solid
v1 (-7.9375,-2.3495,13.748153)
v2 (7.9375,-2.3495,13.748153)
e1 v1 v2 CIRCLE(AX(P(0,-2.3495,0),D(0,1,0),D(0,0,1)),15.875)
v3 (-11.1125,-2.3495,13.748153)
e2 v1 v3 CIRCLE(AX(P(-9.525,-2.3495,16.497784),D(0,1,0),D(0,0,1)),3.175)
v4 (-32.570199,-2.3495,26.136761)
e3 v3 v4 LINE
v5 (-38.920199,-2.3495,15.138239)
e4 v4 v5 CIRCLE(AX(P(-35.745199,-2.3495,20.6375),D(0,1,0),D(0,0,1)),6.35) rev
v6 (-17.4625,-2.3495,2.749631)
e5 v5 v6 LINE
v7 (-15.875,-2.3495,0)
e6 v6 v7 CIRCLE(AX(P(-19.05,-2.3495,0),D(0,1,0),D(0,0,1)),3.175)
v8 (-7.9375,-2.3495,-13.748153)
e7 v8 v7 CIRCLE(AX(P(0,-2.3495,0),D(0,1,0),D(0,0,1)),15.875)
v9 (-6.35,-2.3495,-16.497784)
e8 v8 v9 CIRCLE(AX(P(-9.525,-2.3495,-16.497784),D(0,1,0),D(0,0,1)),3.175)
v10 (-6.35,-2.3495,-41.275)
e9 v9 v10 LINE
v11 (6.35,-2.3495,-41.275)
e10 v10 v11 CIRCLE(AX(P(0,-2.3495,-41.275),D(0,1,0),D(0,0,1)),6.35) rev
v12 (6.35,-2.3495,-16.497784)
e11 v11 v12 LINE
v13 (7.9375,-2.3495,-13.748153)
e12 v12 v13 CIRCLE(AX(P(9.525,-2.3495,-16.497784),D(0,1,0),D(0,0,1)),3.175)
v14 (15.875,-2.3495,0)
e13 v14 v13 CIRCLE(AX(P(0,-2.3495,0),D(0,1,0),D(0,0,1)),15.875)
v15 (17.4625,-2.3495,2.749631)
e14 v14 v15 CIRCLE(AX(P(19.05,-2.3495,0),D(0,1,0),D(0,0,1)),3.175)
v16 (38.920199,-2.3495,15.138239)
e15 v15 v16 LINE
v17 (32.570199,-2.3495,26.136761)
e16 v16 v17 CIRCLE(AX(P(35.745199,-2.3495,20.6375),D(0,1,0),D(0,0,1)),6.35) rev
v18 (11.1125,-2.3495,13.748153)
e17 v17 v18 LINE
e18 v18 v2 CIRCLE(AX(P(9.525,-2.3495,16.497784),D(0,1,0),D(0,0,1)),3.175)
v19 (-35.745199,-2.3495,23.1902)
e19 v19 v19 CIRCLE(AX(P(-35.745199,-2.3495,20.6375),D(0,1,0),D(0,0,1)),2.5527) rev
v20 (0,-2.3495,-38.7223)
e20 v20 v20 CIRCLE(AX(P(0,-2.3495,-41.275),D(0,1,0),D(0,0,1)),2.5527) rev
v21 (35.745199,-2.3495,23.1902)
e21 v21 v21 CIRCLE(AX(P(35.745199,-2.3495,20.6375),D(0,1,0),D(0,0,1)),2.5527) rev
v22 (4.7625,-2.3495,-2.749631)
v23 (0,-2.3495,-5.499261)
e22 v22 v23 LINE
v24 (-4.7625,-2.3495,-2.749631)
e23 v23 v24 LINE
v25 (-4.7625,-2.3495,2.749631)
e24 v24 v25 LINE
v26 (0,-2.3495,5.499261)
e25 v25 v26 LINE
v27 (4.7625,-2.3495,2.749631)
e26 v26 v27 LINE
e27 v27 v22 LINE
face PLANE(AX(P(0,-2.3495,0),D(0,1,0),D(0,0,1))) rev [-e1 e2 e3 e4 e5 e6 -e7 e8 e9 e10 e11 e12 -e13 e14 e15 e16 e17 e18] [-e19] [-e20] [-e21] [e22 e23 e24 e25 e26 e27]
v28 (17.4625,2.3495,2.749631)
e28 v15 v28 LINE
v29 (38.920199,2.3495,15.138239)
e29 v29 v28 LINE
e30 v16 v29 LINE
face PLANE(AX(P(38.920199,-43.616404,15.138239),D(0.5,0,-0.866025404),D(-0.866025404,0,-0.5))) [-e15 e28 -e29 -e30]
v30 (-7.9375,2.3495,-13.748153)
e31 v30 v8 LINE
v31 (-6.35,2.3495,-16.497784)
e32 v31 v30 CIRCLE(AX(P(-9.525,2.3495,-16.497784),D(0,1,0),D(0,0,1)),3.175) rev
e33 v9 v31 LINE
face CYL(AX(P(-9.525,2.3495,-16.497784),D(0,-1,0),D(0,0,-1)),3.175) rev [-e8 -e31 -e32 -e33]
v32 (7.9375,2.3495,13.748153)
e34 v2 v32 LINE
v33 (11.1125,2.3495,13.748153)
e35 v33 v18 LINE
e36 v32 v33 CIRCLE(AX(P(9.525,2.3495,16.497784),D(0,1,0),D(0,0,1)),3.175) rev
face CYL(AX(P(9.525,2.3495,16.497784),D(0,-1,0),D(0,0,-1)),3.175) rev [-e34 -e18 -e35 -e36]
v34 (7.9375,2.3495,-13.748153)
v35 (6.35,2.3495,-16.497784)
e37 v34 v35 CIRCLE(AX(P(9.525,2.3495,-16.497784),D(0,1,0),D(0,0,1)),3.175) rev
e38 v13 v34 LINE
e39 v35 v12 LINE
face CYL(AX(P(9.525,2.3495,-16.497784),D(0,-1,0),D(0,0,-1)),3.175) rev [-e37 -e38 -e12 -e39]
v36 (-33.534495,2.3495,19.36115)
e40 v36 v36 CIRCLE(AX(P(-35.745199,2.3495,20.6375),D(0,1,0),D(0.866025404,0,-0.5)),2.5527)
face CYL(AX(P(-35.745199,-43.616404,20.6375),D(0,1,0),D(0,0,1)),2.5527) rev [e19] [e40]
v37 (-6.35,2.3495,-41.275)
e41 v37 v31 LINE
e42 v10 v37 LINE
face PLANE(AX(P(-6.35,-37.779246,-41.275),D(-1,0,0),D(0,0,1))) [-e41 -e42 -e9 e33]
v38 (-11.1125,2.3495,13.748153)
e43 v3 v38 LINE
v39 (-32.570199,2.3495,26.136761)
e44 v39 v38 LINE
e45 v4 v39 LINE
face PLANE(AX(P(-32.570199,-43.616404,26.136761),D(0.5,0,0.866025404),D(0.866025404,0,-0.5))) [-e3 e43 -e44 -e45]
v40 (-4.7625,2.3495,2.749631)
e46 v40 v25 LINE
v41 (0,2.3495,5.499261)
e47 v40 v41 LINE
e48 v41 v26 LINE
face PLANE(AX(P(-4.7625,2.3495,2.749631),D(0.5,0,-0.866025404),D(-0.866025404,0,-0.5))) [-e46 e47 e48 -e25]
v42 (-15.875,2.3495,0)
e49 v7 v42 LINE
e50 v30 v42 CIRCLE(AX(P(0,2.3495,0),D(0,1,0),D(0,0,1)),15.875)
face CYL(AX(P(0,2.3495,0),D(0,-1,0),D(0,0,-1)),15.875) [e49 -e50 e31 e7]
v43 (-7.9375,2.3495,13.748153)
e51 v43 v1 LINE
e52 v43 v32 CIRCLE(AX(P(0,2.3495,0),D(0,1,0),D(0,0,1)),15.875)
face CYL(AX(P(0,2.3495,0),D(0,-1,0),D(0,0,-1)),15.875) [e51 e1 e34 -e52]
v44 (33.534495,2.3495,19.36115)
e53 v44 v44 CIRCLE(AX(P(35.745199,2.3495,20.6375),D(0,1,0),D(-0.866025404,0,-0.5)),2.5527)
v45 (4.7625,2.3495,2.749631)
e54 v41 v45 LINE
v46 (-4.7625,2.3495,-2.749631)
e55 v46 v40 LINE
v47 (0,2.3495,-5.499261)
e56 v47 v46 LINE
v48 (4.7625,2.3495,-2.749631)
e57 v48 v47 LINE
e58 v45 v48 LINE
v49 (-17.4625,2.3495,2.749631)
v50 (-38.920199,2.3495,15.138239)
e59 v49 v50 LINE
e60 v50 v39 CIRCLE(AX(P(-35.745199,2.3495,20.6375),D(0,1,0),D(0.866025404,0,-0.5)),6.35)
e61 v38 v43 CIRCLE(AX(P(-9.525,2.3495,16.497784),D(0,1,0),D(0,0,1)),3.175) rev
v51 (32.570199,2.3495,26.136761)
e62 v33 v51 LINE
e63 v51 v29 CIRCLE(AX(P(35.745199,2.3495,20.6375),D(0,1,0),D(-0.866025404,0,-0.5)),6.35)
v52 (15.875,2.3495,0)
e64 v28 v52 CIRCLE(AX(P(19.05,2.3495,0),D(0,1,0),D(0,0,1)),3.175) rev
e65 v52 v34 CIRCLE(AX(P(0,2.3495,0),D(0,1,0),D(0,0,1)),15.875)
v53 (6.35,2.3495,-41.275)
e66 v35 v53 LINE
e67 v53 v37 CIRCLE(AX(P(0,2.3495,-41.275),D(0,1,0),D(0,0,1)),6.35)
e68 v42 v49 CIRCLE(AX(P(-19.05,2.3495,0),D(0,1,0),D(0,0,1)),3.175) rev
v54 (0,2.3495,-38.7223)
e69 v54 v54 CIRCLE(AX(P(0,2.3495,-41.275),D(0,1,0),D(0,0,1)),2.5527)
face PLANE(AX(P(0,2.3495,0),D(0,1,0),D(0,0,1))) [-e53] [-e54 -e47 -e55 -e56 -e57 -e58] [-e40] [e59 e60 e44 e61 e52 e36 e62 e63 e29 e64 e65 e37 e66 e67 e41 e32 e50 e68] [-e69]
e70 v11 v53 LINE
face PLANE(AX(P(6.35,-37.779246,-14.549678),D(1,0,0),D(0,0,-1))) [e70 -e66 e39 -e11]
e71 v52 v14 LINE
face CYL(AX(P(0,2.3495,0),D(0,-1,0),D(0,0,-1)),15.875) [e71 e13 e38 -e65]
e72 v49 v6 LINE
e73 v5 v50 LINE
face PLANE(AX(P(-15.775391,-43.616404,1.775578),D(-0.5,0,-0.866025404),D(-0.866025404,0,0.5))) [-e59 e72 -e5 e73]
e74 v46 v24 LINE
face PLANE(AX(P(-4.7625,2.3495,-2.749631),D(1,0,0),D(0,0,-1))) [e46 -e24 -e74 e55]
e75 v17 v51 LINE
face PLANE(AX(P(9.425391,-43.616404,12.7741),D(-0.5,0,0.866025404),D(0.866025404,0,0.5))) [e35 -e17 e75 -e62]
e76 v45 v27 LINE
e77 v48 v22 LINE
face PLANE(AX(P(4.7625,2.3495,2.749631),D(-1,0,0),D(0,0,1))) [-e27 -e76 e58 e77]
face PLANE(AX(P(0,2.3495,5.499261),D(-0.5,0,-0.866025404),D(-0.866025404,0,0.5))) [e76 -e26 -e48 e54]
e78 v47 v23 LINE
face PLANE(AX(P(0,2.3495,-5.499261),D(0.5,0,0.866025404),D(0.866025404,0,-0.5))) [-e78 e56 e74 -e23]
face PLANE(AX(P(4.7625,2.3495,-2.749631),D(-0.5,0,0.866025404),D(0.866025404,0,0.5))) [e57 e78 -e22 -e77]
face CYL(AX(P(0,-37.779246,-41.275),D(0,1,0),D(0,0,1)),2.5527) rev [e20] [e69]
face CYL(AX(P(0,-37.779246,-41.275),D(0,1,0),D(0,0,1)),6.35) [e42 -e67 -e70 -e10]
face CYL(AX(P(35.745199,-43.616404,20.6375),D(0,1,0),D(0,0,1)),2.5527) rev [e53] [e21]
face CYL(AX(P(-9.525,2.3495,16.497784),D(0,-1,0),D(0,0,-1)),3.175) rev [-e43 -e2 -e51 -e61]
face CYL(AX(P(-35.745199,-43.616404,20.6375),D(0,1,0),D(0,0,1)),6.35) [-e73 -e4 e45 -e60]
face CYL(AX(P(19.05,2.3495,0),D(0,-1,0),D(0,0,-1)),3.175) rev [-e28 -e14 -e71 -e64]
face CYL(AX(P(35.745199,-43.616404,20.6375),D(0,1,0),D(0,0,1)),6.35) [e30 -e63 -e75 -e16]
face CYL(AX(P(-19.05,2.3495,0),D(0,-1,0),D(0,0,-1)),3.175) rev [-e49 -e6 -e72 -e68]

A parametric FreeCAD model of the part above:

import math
import FreeCAD as App
import Part
import Sketcher
Q = App.Units.Quantity


def edges_at(feature, points):
    """Names of the edges that pass closest to the given points."""
    edges = feature.Shape.Edges
    near = lambda p: min(range(len(edges)), key=lambda i: edges[i].distToShape(Part.Vertex(*p))[0])
    return sorted({f"Edge{near(p) + 1}" for p in points})


def add_polygon(sketch, points):
    """Adds a closed chain of lines whose ends are joined by coincident constraints."""
    first, n = sketch.GeometryCount, len(points)
    for a, b in zip(points, points[1:] + points[:1]):
        sketch.addGeometry(Part.LineSegment(App.Vector(*a, 0), App.Vector(*b, 0)), False)
    for i in range(n):
        sketch.addConstraint(Sketcher.Constraint("Coincident", first + i, 2, first + (i + 1) % n, 1))

doc = App.newDocument("Part")
body = doc.addObject("PartDesign::Body", "Body")

# Sketch on XZ plane
sketch1 = body.newObject("Sketcher::SketchObject", "Sketch")
sketch1.AttachmentSupport = (doc.getObject("XZ_Plane"), [""])
sketch1.MapMode = "FlatFace"
sketch1.addGeometry(Part.Circle(App.Vector(0, 0, 0), App.Vector(0, 0, 1), 16), False)  # 0
add_polygon(sketch1, [(-5, -3), (0, -5), (5, -3), (5, 3), (0, 5), (-5, 3)])  # lines 1-6
sketch1.addConstraint(Sketcher.Constraint("Vertical", 3))
sketch1.addConstraint(Sketcher.Constraint("Vertical", 6))
sketch1.addConstraint(Sketcher.Constraint("Coincident", 0, 3, -1, 1))
sketch1.addConstraint(Sketcher.Constraint("Symmetric", 1, 2, 4, 2, -1, 1))
sketch1.addConstraint(Sketcher.Constraint("Symmetric", 2, 2, 5, 2, -1, 1))
sketch1.addConstraint(Sketcher.Constraint("PointOnObject", 1, 2, -2))
sketch1.addConstraint(Sketcher.Constraint("Parallel", 1, 4))
sketch1.addConstraint(Sketcher.Constraint("Horizontal", 3, 2, 5, 2))
sketch1.addConstraint(Sketcher.Constraint("Diameter", 0, Q("1.25 in")))
sketch1.addConstraint(Sketcher.Constraint("Angle", 1, Q("-30 deg")))
sketch1.addConstraint(Sketcher.Constraint("DistanceX", -1, 1, 2, 2, Q("0.1875 in")))
sketch1.addConstraint(Sketcher.Constraint("DistanceY", 3, 1, 3, 2, 5.499261))
pad1 = body.newObject("PartDesign::Pad", "Pad")
pad1.Profile = sketch1
pad1.Length = Q("0.185 in")
pad1.Midplane = True

# Sketch on XZ plane
sketch2 = body.newObject("Sketcher::SketchObject", "Sketch001")
sketch2.AttachmentSupport = (doc.getObject("XZ_Plane"), [""])
sketch2.MapMode = "FlatFace"
sketch2.AttachmentOffset = App.Placement(App.Vector(0, 0, -0.0925 * 25.4), App.Rotation())
sketch2.addGeometry(Part.LineSegment(App.Vector(-6.3, -41.3, 0), App.Vector(-6.3, -14.5, 0)), False)
sketch2.addGeometry(Part.ArcOfCircle(Part.Circle(App.Vector(0, 0, 0), App.Vector(0, 0, 1), 15.9), math.radians(-114), math.radians(-66)), False)
sketch2.addGeometry(Part.LineSegment(App.Vector(6.3, -14.5, 0), App.Vector(6.3, -41.3, 0)), False)
sketch2.addGeometry(Part.ArcOfCircle(Part.Circle(App.Vector(0, -41.3, 0), App.Vector(0, 0, 1), 6.3), math.radians(180), math.radians(360)), False)
sketch2.addGeometry(Part.Circle(App.Vector(0, -41.3, 0), App.Vector(0, 0, 1), 2.6), False)
sketch2.addConstraint(Sketcher.Constraint("Coincident", 0, 2, 1, 1))
sketch2.addConstraint(Sketcher.Constraint("Coincident", 1, 2, 2, 1))
sketch2.addConstraint(Sketcher.Constraint("Tangent", 2, 2, 3, 2))
sketch2.addConstraint(Sketcher.Constraint("Tangent", 3, 1, 0, 1))
sketch2.addConstraint(Sketcher.Constraint("Vertical", 0))
sketch2.addConstraint(Sketcher.Constraint("Vertical", 2))
sketch2.addConstraint(Sketcher.Constraint("Coincident", 1, 3, -1, 1))
sketch2.addConstraint(Sketcher.Constraint("Coincident", 4, 3, 3, 3))
sketch2.addConstraint(Sketcher.Constraint("PointOnObject", 3, 3, -2))
sketch2.addConstraint(Sketcher.Constraint("Radius", 3, Q("0.25 in")))
sketch2.addConstraint(Sketcher.Constraint("Diameter", 4, Q("0.201 in")))
sketch2.addConstraint(Sketcher.Constraint("Radius", 1, Q("0.625 in")))
sketch2.addConstraint(Sketcher.Constraint("DistanceY", 3, 3, -1, 1, Q("1.625 in")))
pad2 = body.newObject("PartDesign::Pad", "Pad001")
pad2.Profile = sketch2
pad2.Length = Q("0.185 in")
doc.recompute()

fillet = body.newObject("PartDesign::Fillet", "Fillet")
fillet.Base = (pad2, edges_at(pad2, [(-6.35, 0, -14.55), (6.35, 0, -14.55)]))
fillet.Radius = Q("0.125 in")
doc.recompute()

polarpattern = body.newObject("PartDesign::PolarPattern", "PolarPattern")
polarpattern.Originals = [pad2]
polarpattern.Axis = (doc.getObject("Y_Axis"), [""])
polarpattern.Angle = 360
polarpattern.Occurrences = 3
body.Tip = polarpattern
doc.recompute()

fillet2 = body.newObject("PartDesign::Fillet", "Fillet001")
fillet2.Base = (polarpattern, edges_at(polarpattern, [
    (-9.425, 0, 12.774),
    (-15.775, 0, 1.776),
    (15.775, 0, 1.776),
    (9.425, 0, 12.774),
]))
fillet2.Radius = Q("0.125 in")

doc.recompute()
